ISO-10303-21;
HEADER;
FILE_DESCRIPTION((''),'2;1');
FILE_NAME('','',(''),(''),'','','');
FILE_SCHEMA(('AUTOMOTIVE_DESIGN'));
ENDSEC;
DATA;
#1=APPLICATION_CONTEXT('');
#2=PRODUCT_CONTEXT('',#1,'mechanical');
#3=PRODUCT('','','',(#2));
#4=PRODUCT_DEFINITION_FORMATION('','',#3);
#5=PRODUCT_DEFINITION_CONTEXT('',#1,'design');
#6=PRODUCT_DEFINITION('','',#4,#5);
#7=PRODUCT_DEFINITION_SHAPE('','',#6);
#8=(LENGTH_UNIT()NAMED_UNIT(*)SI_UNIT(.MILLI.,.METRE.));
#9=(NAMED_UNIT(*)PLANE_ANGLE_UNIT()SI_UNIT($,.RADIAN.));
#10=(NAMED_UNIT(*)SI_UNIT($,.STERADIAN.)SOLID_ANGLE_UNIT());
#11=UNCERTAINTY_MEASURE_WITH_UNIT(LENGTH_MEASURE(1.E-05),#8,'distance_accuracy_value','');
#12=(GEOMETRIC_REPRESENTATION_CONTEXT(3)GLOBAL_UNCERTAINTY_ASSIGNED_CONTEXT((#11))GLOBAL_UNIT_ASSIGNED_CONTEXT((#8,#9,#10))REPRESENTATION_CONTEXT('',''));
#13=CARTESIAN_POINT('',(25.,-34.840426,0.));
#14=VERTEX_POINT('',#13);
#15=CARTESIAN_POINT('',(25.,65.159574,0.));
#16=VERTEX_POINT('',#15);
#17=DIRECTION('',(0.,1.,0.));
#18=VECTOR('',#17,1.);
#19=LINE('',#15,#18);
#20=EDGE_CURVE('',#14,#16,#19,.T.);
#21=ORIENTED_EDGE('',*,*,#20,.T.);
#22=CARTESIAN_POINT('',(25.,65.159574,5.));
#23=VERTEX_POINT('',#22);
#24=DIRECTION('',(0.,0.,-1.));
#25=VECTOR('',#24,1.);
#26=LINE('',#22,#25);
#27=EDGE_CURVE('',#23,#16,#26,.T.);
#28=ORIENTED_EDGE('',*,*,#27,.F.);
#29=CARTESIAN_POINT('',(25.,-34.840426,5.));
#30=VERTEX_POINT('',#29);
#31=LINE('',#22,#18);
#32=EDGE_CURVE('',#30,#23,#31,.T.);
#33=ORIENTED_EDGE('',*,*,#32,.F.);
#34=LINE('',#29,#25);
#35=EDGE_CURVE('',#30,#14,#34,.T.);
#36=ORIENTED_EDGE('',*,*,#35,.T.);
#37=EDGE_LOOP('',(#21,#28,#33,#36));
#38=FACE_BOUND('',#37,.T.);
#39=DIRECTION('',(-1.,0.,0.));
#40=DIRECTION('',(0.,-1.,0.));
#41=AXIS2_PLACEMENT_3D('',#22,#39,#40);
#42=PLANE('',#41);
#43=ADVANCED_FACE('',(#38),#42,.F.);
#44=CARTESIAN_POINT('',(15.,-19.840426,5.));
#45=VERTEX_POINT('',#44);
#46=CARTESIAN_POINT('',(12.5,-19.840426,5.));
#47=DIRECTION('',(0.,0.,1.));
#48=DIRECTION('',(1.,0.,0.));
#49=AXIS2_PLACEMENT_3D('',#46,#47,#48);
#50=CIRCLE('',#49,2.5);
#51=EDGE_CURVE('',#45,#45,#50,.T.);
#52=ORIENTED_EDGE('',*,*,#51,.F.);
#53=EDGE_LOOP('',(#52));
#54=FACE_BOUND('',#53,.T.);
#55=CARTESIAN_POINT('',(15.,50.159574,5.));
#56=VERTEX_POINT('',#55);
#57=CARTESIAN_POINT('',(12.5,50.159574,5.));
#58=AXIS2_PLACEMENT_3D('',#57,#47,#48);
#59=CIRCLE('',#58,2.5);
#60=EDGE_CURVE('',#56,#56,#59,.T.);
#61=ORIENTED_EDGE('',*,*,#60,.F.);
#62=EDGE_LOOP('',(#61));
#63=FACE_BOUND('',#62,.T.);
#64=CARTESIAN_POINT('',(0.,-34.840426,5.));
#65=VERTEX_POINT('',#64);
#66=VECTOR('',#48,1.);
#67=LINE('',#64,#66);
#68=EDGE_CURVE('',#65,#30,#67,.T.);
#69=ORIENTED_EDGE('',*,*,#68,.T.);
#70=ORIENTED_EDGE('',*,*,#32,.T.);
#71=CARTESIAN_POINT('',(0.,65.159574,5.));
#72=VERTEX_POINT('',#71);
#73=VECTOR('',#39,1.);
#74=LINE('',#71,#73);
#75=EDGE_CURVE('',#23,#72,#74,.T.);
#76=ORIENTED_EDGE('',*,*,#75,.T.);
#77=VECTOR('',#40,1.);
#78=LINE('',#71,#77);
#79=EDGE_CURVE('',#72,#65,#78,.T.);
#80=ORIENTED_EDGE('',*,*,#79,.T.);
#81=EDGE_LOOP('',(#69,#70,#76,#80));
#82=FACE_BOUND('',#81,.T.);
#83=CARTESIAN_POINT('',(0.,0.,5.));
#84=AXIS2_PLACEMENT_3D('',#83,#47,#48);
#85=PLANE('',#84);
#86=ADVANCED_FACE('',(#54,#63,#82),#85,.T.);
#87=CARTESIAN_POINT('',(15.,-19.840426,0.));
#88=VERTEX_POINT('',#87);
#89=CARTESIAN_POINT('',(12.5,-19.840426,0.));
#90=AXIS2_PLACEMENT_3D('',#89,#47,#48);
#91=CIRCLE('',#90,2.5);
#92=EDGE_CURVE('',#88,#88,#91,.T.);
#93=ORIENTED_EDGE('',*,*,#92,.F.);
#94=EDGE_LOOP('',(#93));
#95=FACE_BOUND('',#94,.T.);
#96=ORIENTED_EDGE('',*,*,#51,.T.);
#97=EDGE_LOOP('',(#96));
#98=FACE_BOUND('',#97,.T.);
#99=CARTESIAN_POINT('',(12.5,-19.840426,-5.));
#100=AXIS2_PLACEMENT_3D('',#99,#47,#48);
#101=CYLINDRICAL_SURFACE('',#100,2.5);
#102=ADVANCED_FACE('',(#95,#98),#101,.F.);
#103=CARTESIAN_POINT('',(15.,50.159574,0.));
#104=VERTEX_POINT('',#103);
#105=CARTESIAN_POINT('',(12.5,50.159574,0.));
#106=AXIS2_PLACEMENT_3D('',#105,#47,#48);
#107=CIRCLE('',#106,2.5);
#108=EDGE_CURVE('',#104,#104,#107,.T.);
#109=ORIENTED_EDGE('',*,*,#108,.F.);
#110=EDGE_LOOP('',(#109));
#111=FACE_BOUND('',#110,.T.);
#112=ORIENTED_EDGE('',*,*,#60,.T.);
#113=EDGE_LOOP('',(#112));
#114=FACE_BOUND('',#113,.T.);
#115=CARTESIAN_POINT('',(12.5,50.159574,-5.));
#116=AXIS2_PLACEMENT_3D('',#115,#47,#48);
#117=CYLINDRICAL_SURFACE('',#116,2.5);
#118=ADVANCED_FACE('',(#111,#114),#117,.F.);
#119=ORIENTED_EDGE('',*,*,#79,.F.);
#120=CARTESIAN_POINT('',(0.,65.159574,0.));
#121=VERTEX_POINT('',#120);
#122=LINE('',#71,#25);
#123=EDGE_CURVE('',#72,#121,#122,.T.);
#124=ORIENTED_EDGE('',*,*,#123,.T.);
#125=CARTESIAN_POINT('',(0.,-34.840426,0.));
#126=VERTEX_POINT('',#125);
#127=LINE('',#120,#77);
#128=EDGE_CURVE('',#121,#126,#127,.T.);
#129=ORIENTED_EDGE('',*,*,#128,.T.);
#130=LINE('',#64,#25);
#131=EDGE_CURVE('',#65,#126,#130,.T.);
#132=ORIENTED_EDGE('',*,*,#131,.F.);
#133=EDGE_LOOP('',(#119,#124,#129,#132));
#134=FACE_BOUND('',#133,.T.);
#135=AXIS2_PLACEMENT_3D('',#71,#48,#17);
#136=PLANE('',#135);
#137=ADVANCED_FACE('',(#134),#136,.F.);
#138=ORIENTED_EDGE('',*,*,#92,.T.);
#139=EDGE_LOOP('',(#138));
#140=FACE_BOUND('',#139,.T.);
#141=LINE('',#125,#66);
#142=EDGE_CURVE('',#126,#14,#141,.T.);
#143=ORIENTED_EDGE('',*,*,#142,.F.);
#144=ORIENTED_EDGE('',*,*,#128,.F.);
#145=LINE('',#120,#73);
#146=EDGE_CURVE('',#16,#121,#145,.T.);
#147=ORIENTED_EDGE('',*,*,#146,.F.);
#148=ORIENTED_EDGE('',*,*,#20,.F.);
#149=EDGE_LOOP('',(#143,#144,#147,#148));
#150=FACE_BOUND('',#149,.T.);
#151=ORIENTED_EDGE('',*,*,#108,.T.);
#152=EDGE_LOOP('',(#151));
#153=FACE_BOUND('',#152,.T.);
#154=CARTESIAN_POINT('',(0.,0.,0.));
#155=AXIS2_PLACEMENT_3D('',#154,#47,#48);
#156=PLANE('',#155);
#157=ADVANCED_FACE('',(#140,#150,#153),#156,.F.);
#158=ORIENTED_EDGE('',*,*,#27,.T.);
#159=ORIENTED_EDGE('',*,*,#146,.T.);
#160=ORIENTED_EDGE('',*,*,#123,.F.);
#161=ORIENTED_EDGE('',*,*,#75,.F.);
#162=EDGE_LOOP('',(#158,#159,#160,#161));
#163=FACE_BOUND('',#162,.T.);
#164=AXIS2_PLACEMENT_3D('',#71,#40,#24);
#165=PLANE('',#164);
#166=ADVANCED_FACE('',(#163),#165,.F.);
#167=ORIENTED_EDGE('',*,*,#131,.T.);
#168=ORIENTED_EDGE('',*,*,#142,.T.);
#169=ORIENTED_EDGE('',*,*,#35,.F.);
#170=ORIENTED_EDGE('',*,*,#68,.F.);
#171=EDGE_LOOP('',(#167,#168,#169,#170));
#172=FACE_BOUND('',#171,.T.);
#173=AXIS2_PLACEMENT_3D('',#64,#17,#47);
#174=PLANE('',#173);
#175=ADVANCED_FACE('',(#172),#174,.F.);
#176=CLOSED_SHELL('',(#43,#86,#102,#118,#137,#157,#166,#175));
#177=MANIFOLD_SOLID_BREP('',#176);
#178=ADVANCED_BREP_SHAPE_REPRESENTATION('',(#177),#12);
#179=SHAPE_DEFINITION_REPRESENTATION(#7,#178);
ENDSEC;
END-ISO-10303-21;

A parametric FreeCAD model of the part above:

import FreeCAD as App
import Part
import Sketcher
from FreeCAD import Vector


def add_polygon(sketch, points):
    """Adds a closed chain of lines whose ends are joined by coincident constraints."""
    first, n = sketch.GeometryCount, len(points)
    for a, b in zip(points, points[1:] + points[:1]):
        sketch.addGeometry(Part.LineSegment(App.Vector(*a, 0), App.Vector(*b, 0)), False)
    for i in range(n):
        sketch.addConstraint(Sketcher.Constraint("Coincident", first + i, 2, first + (i + 1) % n, 1))

doc = App.newDocument("Part")
body = doc.addObject("PartDesign::Body", "Body")

# Sketch on XY plane
sketch1 = body.newObject("Sketcher::SketchObject", "Sketch")
sketch1.AttachmentSupport = (doc.getObject("XY_Plane"), [""])
sketch1.MapMode = "FlatFace"
add_polygon(sketch1, [(0, 65), (0, -35), (25, -35), (25, 65)])  # lines 0-3
sketch1.addConstraint([
    Sketcher.Constraint("Vertical", 0),
    Sketcher.Constraint("Horizontal", 1),
    Sketcher.Constraint("Vertical", 2),
    Sketcher.Constraint("Horizontal", 3),
    Sketcher.Constraint("PointOnObject", 0, 2, -2),
    Sketcher.Constraint("DistanceX", 1, 1, 1, 2, 25.0),
    Sketcher.Constraint("DistanceY", 0, 2, 0, 1, 100.0),
    Sketcher.Constraint("DistanceY", 0, 2, -1, 1, 34.840426),
])
pad1 = body.newObject("PartDesign::Pad", "Pad")
pad1.Profile = sketch1
pad1.Length = 5

# Sketch on XY plane
sketch2 = body.newObject("Sketcher::SketchObject", "Sketch001")
sketch2.AttachmentSupport = (doc.getObject("XY_Plane"), [""])
sketch2.MapMode = "FlatFace"
sketch2.AttachmentOffset = App.Placement(Vector(0, 0, 5), App.Rotation())
sketch2.addGeometry([
    Part.Circle(Vector(12.5, 50.2, 0), Vector(0, 0, 1), 2.5),
    Part.Circle(Vector(12.5, -19.8, 0), Vector(0, 0, 1), 2.5),
], False)
sketch2.addConstraint([
    Sketcher.Constraint("Equal", 0, 1),
    Sketcher.Constraint("Vertical", 0, 3, 1, 3),
    Sketcher.Constraint("Diameter", 0, 5.0),
    Sketcher.Constraint("DistanceY", 1, 3, 0, 3, 70.0),
    Sketcher.Constraint("DistanceX", -1, 1, 0, 3, 12.5),
    Sketcher.Constraint("DistanceY", -1, 1, 0, 3, 50.159574),
])
pocket1 = body.newObject("PartDesign::Pocket", "Pocket")
pocket1.Profile = sketch2
pocket1.Length = 10

doc.recompute()
